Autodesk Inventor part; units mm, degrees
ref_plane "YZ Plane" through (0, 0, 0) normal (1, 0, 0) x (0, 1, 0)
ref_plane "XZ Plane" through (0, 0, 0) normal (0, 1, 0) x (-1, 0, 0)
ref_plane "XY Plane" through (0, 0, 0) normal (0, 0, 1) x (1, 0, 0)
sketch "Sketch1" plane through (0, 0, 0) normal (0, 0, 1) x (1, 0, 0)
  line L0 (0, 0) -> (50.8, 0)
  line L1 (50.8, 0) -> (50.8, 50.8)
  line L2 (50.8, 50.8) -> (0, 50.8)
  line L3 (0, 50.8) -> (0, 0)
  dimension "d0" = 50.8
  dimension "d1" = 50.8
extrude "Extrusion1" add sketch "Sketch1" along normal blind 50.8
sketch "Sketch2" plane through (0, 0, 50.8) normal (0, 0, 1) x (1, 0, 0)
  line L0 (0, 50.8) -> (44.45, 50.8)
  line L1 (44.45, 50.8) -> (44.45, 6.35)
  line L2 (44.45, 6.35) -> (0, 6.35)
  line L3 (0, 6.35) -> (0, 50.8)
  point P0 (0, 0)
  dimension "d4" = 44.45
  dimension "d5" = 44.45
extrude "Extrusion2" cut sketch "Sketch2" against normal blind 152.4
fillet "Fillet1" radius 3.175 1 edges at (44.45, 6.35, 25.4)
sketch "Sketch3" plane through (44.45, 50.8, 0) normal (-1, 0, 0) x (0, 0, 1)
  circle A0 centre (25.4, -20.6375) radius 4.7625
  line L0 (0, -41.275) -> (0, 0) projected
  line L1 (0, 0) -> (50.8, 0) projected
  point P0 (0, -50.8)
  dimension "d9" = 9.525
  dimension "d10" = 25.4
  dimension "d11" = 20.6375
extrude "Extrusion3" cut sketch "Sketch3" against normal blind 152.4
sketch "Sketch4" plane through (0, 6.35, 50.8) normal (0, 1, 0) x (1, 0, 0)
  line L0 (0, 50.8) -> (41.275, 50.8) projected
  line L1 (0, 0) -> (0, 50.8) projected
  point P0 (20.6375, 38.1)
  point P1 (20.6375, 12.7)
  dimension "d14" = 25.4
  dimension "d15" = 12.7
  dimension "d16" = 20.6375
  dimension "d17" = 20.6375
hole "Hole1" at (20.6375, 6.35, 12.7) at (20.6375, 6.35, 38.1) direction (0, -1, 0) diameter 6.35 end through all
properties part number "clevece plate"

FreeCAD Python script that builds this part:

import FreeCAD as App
import Part
import Sketcher
from FreeCAD import Vector
Q = App.Units.Quantity


def edges_at(feature, points):
    """Names of the edges that pass closest to the given points."""
    edges = feature.Shape.Edges
    near = lambda p: min(range(len(edges)), key=lambda i: edges[i].distToShape(Part.Vertex(*p))[0])
    return sorted({f"Edge{near(p) + 1}" for p in points})


def add_polygon(sketch, points):
    """Adds a closed chain of lines whose ends are joined by coincident constraints."""
    first, n = sketch.GeometryCount, len(points)
    for a, b in zip(points, points[1:] + points[:1]):
        sketch.addGeometry(Part.LineSegment(App.Vector(*a, 0), App.Vector(*b, 0)), False)
    for i in range(n):
        sketch.addConstraint(Sketcher.Constraint("Coincident", first + i, 2, first + (i + 1) % n, 1))

doc = App.newDocument("Part")
body = doc.addObject("PartDesign::Body", "Body")

# Sketch on XY plane
sketch1 = body.newObject("Sketcher::SketchObject", "Sketch")
sketch1.AttachmentSupport = (doc.getObject("XY_Plane"), [""])
sketch1.MapMode = "FlatFace"
add_polygon(sketch1, [(0, 51), (0, 0), (51, 0), (51, 51)])  # lines 0-3
sketch1.addConstraint([
    Sketcher.Constraint("Vertical", 0),
    Sketcher.Constraint("Horizontal", 1),
    Sketcher.Constraint("Vertical", 2),
    Sketcher.Constraint("Horizontal", 3),
    Sketcher.Constraint("Coincident", 0, 2, -1, 1),
    Sketcher.Constraint("Equal", 3, 0),
    Sketcher.Constraint("DistanceX", 1, 1, 1, 2, Q("2 in")),
])
pad1 = body.newObject("PartDesign::Pad", "Pad")
pad1.Profile = sketch1
pad1.Length = Q("2 in")

# Sketch on XY plane
sketch2 = body.newObject("Sketcher::SketchObject", "Sketch001")
sketch2.AttachmentSupport = (doc.getObject("XY_Plane"), [""])
sketch2.MapMode = "FlatFace"
sketch2.AttachmentOffset = App.Placement(Vector(0, 0, 2 * 25.4), App.Rotation())
add_polygon(sketch2, [(44, 51), (0, 51), (0, 6), (44, 6)])  # lines 0-3
sketch2.addConstraint([
    Sketcher.Constraint("Horizontal", 0),
    Sketcher.Constraint("Vertical", 1),
    Sketcher.Constraint("Horizontal", 2),
    Sketcher.Constraint("Vertical", 3),
    Sketcher.Constraint("PointOnObject", 0, 2, -2),
    Sketcher.Constraint("Equal", 2, 1),
    Sketcher.Constraint("DistanceX", 0, 2, 0, 1, Q("1.75 in")),
    Sketcher.Constraint("DistanceY", -1, 1, 0, 2, Q("2 in")),
])
pocket1 = body.newObject("PartDesign::Pocket", "Pocket")
pocket1.Profile = sketch2
pocket1.Length = Q("6 in")
doc.recompute()

fillet = body.newObject("PartDesign::Fillet", "Fillet")
fillet.Base = (pocket1, edges_at(pocket1, [(44.45, 6.35, 25.4)]))
fillet.Radius = Q("0.125 in")

# Sketch on YZ plane
sketch3 = body.newObject("Sketcher::SketchObject", "Sketch002")
sketch3.AttachmentSupport = (doc.getObject("YZ_Plane"), [""])
sketch3.MapMode = "FlatFace"
sketch3.AttachmentOffset = App.Placement(Vector(0, 0, 1.75 * 25.4), App.Rotation())
sketch3.addGeometry(Part.Circle(Vector(30.2, 25.4, 0), Vector(0, 0, 1), 4.8), False)
sketch3.addConstraint([
    Sketcher.Constraint("Diameter", 0, Q("0.375 in")),
    Sketcher.Constraint("DistanceY", -1, 1, 0, 3, Q("1 in")),
    Sketcher.Constraint("DistanceX", -1, 1, 0, 3, Q("1.1875 in")),
])
pocket2 = body.newObject("PartDesign::Pocket", "Pocket001")
pocket2.Profile = sketch3
pocket2.Length = Q("6 in")
pocket2.Reversed = True

# Sketch on XZ plane
sketch4 = body.newObject("Sketcher::SketchObject", "Sketch003")
sketch4.AttachmentSupport = (doc.getObject("XZ_Plane"), [""])
sketch4.MapMode = "FlatFace"
sketch4.AttachmentOffset = App.Placement(Vector(0, 0, -0.25 * 25.4), App.Rotation())
sketch4.addGeometry([
    Part.Circle(Vector(20.6, 12.7, 0), Vector(0, 0, 1), 3.2),
    Part.Circle(Vector(20.6, 38.1, 0), Vector(0, 0, 1), 3.2),
], False)
sketch4.addConstraint([
    Sketcher.Constraint("Equal", 0, 1),
    Sketcher.Constraint("Vertical", 0, 3, 1, 3),
    Sketcher.Constraint("Diameter", 0, Q("0.25 in")),
    Sketcher.Constraint("DistanceY", 0, 3, 1, 3, Q("1 in")),
    Sketcher.Constraint("DistanceY", -1, 1, 0, 3, Q("0.5 in")),
    Sketcher.Constraint("DistanceX", -1, 1, 0, 3, Q("0.8125 in")),
])
doc.recompute()
hole = body.newObject("PartDesign::Hole", "Hole")
hole.Profile = sketch4
hole.ThreadType = "None"
hole.Diameter = Q("0.25 in")
hole.DepthType = "ThroughAll"
hole.Reversed = True

doc.recompute()
